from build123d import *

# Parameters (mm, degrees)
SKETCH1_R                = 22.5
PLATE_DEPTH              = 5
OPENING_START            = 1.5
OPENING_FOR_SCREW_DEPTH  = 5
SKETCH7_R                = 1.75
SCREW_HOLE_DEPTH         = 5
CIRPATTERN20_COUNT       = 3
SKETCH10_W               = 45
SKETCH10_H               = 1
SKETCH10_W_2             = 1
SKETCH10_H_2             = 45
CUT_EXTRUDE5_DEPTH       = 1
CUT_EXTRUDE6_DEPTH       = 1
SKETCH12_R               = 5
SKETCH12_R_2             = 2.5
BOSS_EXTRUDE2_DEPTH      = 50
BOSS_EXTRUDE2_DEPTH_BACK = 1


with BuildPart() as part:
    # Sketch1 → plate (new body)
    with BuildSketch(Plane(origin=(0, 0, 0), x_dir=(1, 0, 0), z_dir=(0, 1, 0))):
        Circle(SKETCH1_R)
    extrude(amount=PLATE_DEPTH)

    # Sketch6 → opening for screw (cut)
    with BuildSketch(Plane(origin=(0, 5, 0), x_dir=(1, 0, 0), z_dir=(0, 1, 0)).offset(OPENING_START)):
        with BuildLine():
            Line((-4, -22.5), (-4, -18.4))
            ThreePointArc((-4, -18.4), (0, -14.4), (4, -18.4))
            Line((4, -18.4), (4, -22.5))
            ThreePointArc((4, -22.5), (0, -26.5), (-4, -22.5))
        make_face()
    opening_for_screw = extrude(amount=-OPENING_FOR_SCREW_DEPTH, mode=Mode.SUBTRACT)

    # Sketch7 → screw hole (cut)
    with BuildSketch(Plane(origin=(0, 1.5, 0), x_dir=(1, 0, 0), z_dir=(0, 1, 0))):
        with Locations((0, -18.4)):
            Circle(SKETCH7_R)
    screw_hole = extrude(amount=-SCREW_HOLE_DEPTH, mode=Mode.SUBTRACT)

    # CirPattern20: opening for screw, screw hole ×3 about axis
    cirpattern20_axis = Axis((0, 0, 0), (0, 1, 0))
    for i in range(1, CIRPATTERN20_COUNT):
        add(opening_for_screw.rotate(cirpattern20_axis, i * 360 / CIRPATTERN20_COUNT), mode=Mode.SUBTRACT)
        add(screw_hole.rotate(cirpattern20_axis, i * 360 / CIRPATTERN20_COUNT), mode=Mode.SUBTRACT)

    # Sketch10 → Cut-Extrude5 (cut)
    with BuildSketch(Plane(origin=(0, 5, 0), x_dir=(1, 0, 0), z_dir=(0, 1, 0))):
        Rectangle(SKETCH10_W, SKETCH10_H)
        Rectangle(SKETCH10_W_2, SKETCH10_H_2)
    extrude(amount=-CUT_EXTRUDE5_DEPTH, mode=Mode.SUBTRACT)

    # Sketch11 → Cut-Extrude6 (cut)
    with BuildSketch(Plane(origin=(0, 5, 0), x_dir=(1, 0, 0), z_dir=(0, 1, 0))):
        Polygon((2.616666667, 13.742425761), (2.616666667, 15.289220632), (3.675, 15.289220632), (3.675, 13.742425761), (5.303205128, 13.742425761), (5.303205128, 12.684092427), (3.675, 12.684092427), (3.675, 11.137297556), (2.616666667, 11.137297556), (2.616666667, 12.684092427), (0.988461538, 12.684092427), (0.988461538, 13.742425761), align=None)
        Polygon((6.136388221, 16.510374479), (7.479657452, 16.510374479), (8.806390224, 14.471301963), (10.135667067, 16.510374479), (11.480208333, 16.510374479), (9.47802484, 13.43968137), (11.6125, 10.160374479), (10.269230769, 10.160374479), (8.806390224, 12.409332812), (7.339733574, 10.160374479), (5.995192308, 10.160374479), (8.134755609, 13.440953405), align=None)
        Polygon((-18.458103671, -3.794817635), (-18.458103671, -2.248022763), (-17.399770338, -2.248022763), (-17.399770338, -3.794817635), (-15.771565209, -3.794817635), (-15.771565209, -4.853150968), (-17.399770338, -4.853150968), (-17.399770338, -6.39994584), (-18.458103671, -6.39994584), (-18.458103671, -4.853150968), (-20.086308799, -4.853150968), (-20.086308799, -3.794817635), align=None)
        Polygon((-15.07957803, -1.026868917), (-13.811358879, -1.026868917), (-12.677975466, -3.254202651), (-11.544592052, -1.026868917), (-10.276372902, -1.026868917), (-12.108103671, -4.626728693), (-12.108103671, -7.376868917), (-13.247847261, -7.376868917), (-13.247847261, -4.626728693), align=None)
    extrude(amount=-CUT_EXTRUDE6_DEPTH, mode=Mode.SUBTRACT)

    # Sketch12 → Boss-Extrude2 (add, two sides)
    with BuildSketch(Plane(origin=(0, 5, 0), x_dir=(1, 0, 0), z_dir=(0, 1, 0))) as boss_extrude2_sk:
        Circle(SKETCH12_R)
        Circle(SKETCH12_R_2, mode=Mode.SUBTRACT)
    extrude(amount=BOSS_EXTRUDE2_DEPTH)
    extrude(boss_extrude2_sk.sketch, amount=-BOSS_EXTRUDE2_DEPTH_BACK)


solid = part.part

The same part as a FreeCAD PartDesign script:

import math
import FreeCAD as App
import Part
import Sketcher

doc = App.newDocument("Part")
body = doc.addObject("PartDesign::Body", "Body")

# Sketch on XZ plane
sketch1 = body.newObject("Sketcher::SketchObject", "Sketch")
sketch1.AttachmentSupport = (doc.getObject("XZ_Plane"), [""])
sketch1.MapMode = "FlatFace"
sketch1.addGeometry(Part.Circle(App.Vector(0, 0, 0), App.Vector(0, 0, 1), 22), False)
sketch1.addConstraint(Sketcher.Constraint("Coincident", 0, 3, -1, 1))
sketch1.addConstraint(Sketcher.Constraint("Diameter", 0, 45.0))
pad1 = body.newObject("PartDesign::Pad", "Pad")
pad1.Profile = sketch1
pad1.Length = 5
pad1.Reversed = True

# Sketch on XZ plane
sketch2 = body.newObject("Sketcher::SketchObject", "Sketch001")
sketch2.AttachmentSupport = (doc.getObject("XZ_Plane"), [""])
sketch2.MapMode = "FlatFace"
sketch2.AttachmentOffset = App.Placement(App.Vector(0, 0, -6.5), App.Rotation())
sketch2.addGeometry(Part.LineSegment(App.Vector(-4, 18.4, 0), App.Vector(-4, 22.5, 0)), False)
sketch2.addGeometry(Part.ArcOfCircle(Part.Circle(App.Vector(0, 22.5, 0), App.Vector(0, 0, 1), 4), math.radians(0), math.radians(180)), False)
sketch2.addGeometry(Part.LineSegment(App.Vector(4, 22.5, 0), App.Vector(4, 18.4, 0)), False)
sketch2.addGeometry(Part.ArcOfCircle(Part.Circle(App.Vector(0, 18.4, 0), App.Vector(0, 0, 1), 4), math.radians(180), math.radians(360)), False)
sketch2.addConstraint(Sketcher.Constraint("Tangent", 0, 2, 1, 2))
sketch2.addConstraint(Sketcher.Constraint("Tangent", 1, 1, 2, 1))
sketch2.addConstraint(Sketcher.Constraint("Tangent", 2, 2, 3, 2))
sketch2.addConstraint(Sketcher.Constraint("Tangent", 3, 1, 0, 1))
sketch2.addConstraint(Sketcher.Constraint("Vertical", 0))
sketch2.addConstraint(Sketcher.Constraint("Vertical", 2))
sketch2.addConstraint(Sketcher.Constraint("PointOnObject", 1, 3, -2))
sketch2.addConstraint(Sketcher.Constraint("Radius", 1, 4.0))
sketch2.addConstraint(Sketcher.Constraint("DistanceY", 0, 1, 0, 2, 4.1))
sketch2.addConstraint(Sketcher.Constraint("DistanceY", -1, 1, 1, 3, 22.5))
pocket1 = body.newObject("PartDesign::Pocket", "Pocket")
pocket1.Profile = sketch2
pocket1.Length = 5
pocket1.Reversed = True

# Sketch on XZ plane
sketch3 = body.newObject("Sketcher::SketchObject", "Sketch002")
sketch3.AttachmentSupport = (doc.getObject("XZ_Plane"), [""])
sketch3.MapMode = "FlatFace"
sketch3.AttachmentOffset = App.Placement(App.Vector(0, 0, -1.5), App.Rotation())
sketch3.addGeometry(Part.Circle(App.Vector(0, 18.4, 0), App.Vector(0, 0, 1), 1.8), False)
sketch3.addConstraint(Sketcher.Constraint("PointOnObject", 0, 3, -2))
sketch3.addConstraint(Sketcher.Constraint("Diameter", 0, 3.5))
sketch3.addConstraint(Sketcher.Constraint("DistanceY", -1, 1, 0, 3, 18.4))
pocket2 = body.newObject("PartDesign::Pocket", "Pocket001")
pocket2.Profile = sketch3
pocket2.Length = 5
pocket2.Reversed = True
doc.recompute()

polarpattern = body.newObject("PartDesign::PolarPattern", "PolarPattern")
polarpattern.Originals = [pocket1, pocket2]
polarpattern.Axis = (doc.getObject("Y_Axis"), [""])
polarpattern.Angle = 360
polarpattern.Occurrences = 3
body.Tip = polarpattern

# Sketch on XZ plane
sketch4 = body.newObject("Sketcher::SketchObject", "Sketch003")
sketch4.AttachmentSupport = (doc.getObject("XZ_Plane"), [""])
sketch4.MapMode = "FlatFace"
sketch4.AttachmentOffset = App.Placement(App.Vector(0, 0, -5), App.Rotation())
sketch4.addGeometry(Part.LineSegment(App.Vector(-22.5, -0.5, 0), App.Vector(-22.5, 0.5, 0)), False)
sketch4.addGeometry(Part.LineSegment(App.Vector(-22.5, 0.5, 0), App.Vector(-0.5, 0.5, 0)), False)
sketch4.addGeometry(Part.LineSegment(App.Vector(-0.5, 0.5, 0), App.Vector(-0.5, 22.5, 0)), False)
sketch4.addGeometry(Part.LineSegment(App.Vector(-0.5, 22.5, 0), App.Vector(0.5, 22.5, 0)), False)
sketch4.addGeometry(Part.LineSegment(App.Vector(0.5, 22.5, 0), App.Vector(0.5, 0.5, 0)), False)
sketch4.addGeometry(Part.LineSegment(App.Vector(0.5, 0.5, 0), App.Vector(22.5, 0.5, 0)), False)
sketch4.addGeometry(Part.LineSegment(App.Vector(22.5, 0.5, 0), App.Vector(22.5, -0.5, 0)), False)
sketch4.addGeometry(Part.LineSegment(App.Vector(22.5, -0.5, 0), App.Vector(0.5, -0.5, 0)), False)
sketch4.addGeometry(Part.LineSegment(App.Vector(0.5, -0.5, 0), App.Vector(0.5, -22.5, 0)), False)
sketch4.addGeometry(Part.LineSegment(App.Vector(0.5, -22.5, 0), App.Vector(-0.5, -22.5, 0)), False)
sketch4.addGeometry(Part.LineSegment(App.Vector(-0.5, -22.5, 0), App.Vector(-0.5, -0.5, 0)), False)
sketch4.addGeometry(Part.LineSegment(App.Vector(-0.5, -0.5, 0), App.Vector(-22.5, -0.5, 0)), False)
sketch4.addConstraint(Sketcher.Constraint("Coincident", 0, 2, 1, 1))
sketch4.addConstraint(Sketcher.Constraint("Coincident", 1, 2, 2, 1))
sketch4.addConstraint(Sketcher.Constraint("Coincident", 2, 2, 3, 1))
sketch4.addConstraint(Sketcher.Constraint("Coincident", 3, 2, 4, 1))
sketch4.addConstraint(Sketcher.Constraint("Coincident", 4, 2, 5, 1))
sketch4.addConstraint(Sketcher.Constraint("Coincident", 5, 2, 6, 1))
sketch4.addConstraint(Sketcher.Constraint("Coincident", 6, 2, 7, 1))
sketch4.addConstraint(Sketcher.Constraint("Coincident", 7, 2, 8, 1))
sketch4.addConstraint(Sketcher.Constraint("Coincident", 8, 2, 9, 1))
sketch4.addConstraint(Sketcher.Constraint("Coincident", 9, 2, 10, 1))
sketch4.addConstraint(Sketcher.Constraint("Coincident", 10, 2, 11, 1))
sketch4.addConstraint(Sketcher.Constraint("Coincident", 11, 2, 0, 1))
sketch4.addConstraint(Sketcher.Constraint("Vertical", 0))
sketch4.addConstraint(Sketcher.Constraint("Horizontal", 1))
sketch4.addConstraint(Sketcher.Constraint("Vertical", 2))
sketch4.addConstraint(Sketcher.Constraint("Horizontal", 3))
sketch4.addConstraint(Sketcher.Constraint("Vertical", 4))
sketch4.addConstraint(Sketcher.Constraint("Horizontal", 5))
sketch4.addConstraint(Sketcher.Constraint("Vertical", 6))
sketch4.addConstraint(Sketcher.Constraint("Horizontal", 7))
sketch4.addConstraint(Sketcher.Constraint("Vertical", 8))
sketch4.addConstraint(Sketcher.Constraint("Horizontal", 9))
sketch4.addConstraint(Sketcher.Constraint("Vertical", 10))
sketch4.addConstraint(Sketcher.Constraint("Horizontal", 11))
sketch4.addConstraint(Sketcher.Constraint("Symmetric", 0, 2, 6, 2, -1, 1))
sketch4.addConstraint(Sketcher.Constraint("Symmetric", 2, 2, 8, 2, -1, 1))
sketch4.addConstraint(Sketcher.Constraint("Symmetric", 4, 2, 10, 2, -1, 1))
sketch4.addConstraint(Sketcher.Constraint("Symmetric", 1, 2, 4, 2, -2))
sketch4.addConstraint(Sketcher.Constraint("Equal", 9, 0))
sketch4.addConstraint(Sketcher.Constraint("Equal", 11, 2))
sketch4.addConstraint(Sketcher.Constraint("DistanceX", 1, 1, 1, 2, 22.0))
sketch4.addConstraint(Sketcher.Constraint("DistanceX", 3, 1, 3, 2, 1.0))
pocket3 = body.newObject("PartDesign::Pocket", "Pocket002")
pocket3.Profile = sketch4
pocket3.Length = 1
pocket3.Reversed = True

# Sketch on XZ plane
sketch5 = body.newObject("Sketcher::SketchObject", "Sketch004")
sketch5.AttachmentSupport = (doc.getObject("XZ_Plane"), [""])
sketch5.MapMode = "FlatFace"
sketch5.AttachmentOffset = App.Placement(App.Vector(0, 0, -5), App.Rotation())
sketch5.addGeometry(Part.LineSegment(App.Vector(2.6, -15.3, 0), App.Vector(2.6, -13.7, 0)), False)
sketch5.addGeometry(Part.LineSegment(App.Vector(2.6, -13.7, 0), App.Vector(1, -13.7, 0)), False)
sketch5.addGeometry(Part.LineSegment(App.Vector(1, -13.7, 0), App.Vector(1, -12.7, 0)), False)
sketch5.addGeometry(Part.LineSegment(App.Vector(1, -12.7, 0), App.Vector(2.6, -12.7, 0)), False)
sketch5.addGeometry(Part.LineSegment(App.Vector(2.6, -12.7, 0), App.Vector(2.6, -11.1, 0)), False)
sketch5.addGeometry(Part.LineSegment(App.Vector(2.6, -11.1, 0), App.Vector(3.7, -11.1, 0)), False)
sketch5.addGeometry(Part.LineSegment(App.Vector(3.7, -11.1, 0), App.Vector(3.7, -12.7, 0)), False)
sketch5.addGeometry(Part.LineSegment(App.Vector(3.7, -12.7, 0), App.Vector(5.3, -12.7, 0)), False)
sketch5.addGeometry(Part.LineSegment(App.Vector(5.3, -12.7, 0), App.Vector(5.3, -13.7, 0)), False)
sketch5.addGeometry(Part.LineSegment(App.Vector(5.3, -13.7, 0), App.Vector(3.7, -13.7, 0)), False)
sketch5.addGeometry(Part.LineSegment(App.Vector(3.7, -13.7, 0), App.Vector(3.7, -15.3, 0)), False)
sketch5.addGeometry(Part.LineSegment(App.Vector(3.7, -15.3, 0), App.Vector(2.6, -15.3, 0)), False)
sketch5.addGeometry(Part.LineSegment(App.Vector(7.5, -16.5, 0), App.Vector(6.1, -16.5, 0)), False)
sketch5.addGeometry(Part.LineSegment(App.Vector(6.1, -16.5, 0), App.Vector(8.1, -13.4, 0)), False)
sketch5.addGeometry(Part.LineSegment(App.Vector(8.1, -13.4, 0), App.Vector(6, -10.2, 0)), False)
sketch5.addGeometry(Part.LineSegment(App.Vector(6, -10.2, 0), App.Vector(7.3, -10.2, 0)), False)
sketch5.addGeometry(Part.LineSegment(App.Vector(7.3, -10.2, 0), App.Vector(8.8, -12.4, 0)), False)
sketch5.addGeometry(Part.LineSegment(App.Vector(8.8, -12.4, 0), App.Vector(10.3, -10.2, 0)), False)
sketch5.addGeometry(Part.LineSegment(App.Vector(10.3, -10.2, 0), App.Vector(11.6, -10.2, 0)), False)
sketch5.addGeometry(Part.LineSegment(App.Vector(11.6, -10.2, 0), App.Vector(9.5, -13.4, 0)), False)
sketch5.addGeometry(Part.LineSegment(App.Vector(9.5, -13.4, 0), App.Vector(11.5, -16.5, 0)), False)
sketch5.addGeometry(Part.LineSegment(App.Vector(11.5, -16.5, 0), App.Vector(10.1, -16.5, 0)), False)
sketch5.addGeometry(Part.LineSegment(App.Vector(10.1, -16.5, 0), App.Vector(8.8, -14.5, 0)), False)
sketch5.addGeometry(Part.LineSegment(App.Vector(8.8, -14.5, 0), App.Vector(7.5, -16.5, 0)), False)
sketch5.addGeometry(Part.LineSegment(App.Vector(-18.5, 2.2, 0), App.Vector(-18.5, 3.8, 0)), False)
sketch5.addGeometry(Part.LineSegment(App.Vector(-18.5, 3.8, 0), App.Vector(-20.1, 3.8, 0)), False)
sketch5.addGeometry(Part.LineSegment(App.Vector(-20.1, 3.8, 0), App.Vector(-20.1, 4.9, 0)), False)
sketch5.addGeometry(Part.LineSegment(App.Vector(-20.1, 4.9, 0), App.Vector(-18.5, 4.9, 0)), False)
sketch5.addGeometry(Part.LineSegment(App.Vector(-18.5, 4.9, 0), App.Vector(-18.5, 6.4, 0)), False)
sketch5.addGeometry(Part.LineSegment(App.Vector(-18.5, 6.4, 0), App.Vector(-17.4, 6.4, 0)), False)
sketch5.addGeometry(Part.LineSegment(App.Vector(-17.4, 6.4, 0), App.Vector(-17.4, 4.9, 0)), False)
sketch5.addGeometry(Part.LineSegment(App.Vector(-17.4, 4.9, 0), App.Vector(-15.8, 4.9, 0)), False)
sketch5.addGeometry(Part.LineSegment(App.Vector(-15.8, 4.9, 0), App.Vector(-15.8, 3.8, 0)), False)
sketch5.addGeometry(Part.LineSegment(App.Vector(-15.8, 3.8, 0), App.Vector(-17.4, 3.8, 0)), False)
sketch5.addGeometry(Part.LineSegment(App.Vector(-17.4, 3.8, 0), App.Vector(-17.4, 2.2, 0)), False)
sketch5.addGeometry(Part.LineSegment(App.Vector(-17.4, 2.2, 0), App.Vector(-18.5, 2.2, 0)), False)
sketch5.addGeometry(Part.LineSegment(App.Vector(-13.8, 1, 0), App.Vector(-15.1, 1, 0)), False)
sketch5.addGeometry(Part.LineSegment(App.Vector(-15.1, 1, 0), App.Vector(-13.2, 4.6, 0)), False)
sketch5.addGeometry(Part.LineSegment(App.Vector(-13.2, 4.6, 0), App.Vector(-13.2, 7.4, 0)), False)
sketch5.addGeometry(Part.LineSegment(App.Vector(-13.2, 7.4, 0), App.Vector(-12.1, 7.4, 0)), False)
sketch5.addGeometry(Part.LineSegment(App.Vector(-12.1, 7.4, 0), App.Vector(-12.1, 4.6, 0)), False)
sketch5.addGeometry(Part.LineSegment(App.Vector(-12.1, 4.6, 0), App.Vector(-10.3, 1, 0)), False)
sketch5.addGeometry(Part.LineSegment(App.Vector(-10.3, 1, 0), App.Vector(-11.5, 1, 0)), False)
sketch5.addGeometry(Part.LineSegment(App.Vector(-11.5, 1, 0), App.Vector(-12.7, 3.3, 0)), False)
sketch5.addGeometry(Part.LineSegment(App.Vector(-12.7, 3.3, 0), App.Vector(-13.8, 1, 0)), False)
sketch5.addConstraint(Sketcher.Constraint("Coincident", 0, 2, 1, 1))
sketch5.addConstraint(Sketcher.Constraint("Coincident", 1, 2, 2, 1))
sketch5.addConstraint(Sketcher.Constraint("Coincident", 2, 2, 3, 1))
sketch5.addConstraint(Sketcher.Constraint("Coincident", 3, 2, 4, 1))
sketch5.addConstraint(Sketcher.Constraint("Coincident", 4, 2, 5, 1))
sketch5.addConstraint(Sketcher.Constraint("Coincident", 5, 2, 6, 1))
sketch5.addConstraint(Sketcher.Constraint("Coincident", 6, 2, 7, 1))
sketch5.addConstraint(Sketcher.Constraint("Coincident", 7, 2, 8, 1))
sketch5.addConstraint(Sketcher.Constraint("Coincident", 8, 2, 9, 1))
sketch5.addConstraint(Sketcher.Constraint("Coincident", 9, 2, 10, 1))
sketch5.addConstraint(Sketcher.Constraint("Coincident", 10, 2, 11, 1))
sketch5.addConstraint(Sketcher.Constraint("Coincident", 11, 2, 0, 1))
sketch5.addConstraint(Sketcher.Constraint("Coincident", 12, 2, 13, 1))
sketch5.addConstraint(Sketcher.Constraint("Coincident", 13, 2, 14, 1))
sketch5.addConstraint(Sketcher.Constraint("Coincident", 14, 2, 15, 1))
sketch5.addConstraint(Sketcher.Constraint("Coincident", 15, 2, 16, 1))
sketch5.addConstraint(Sketcher.Constraint("Coincident", 16, 2, 17, 1))
sketch5.addConstraint(Sketcher.Constraint("Coincident", 17, 2, 18, 1))
sketch5.addConstraint(Sketcher.Constraint("Coincident", 18, 2, 19, 1))
sketch5.addConstraint(Sketcher.Constraint("Coincident", 19, 2, 20, 1))
sketch5.addConstraint(Sketcher.Constraint("Coincident", 20, 2, 21, 1))
sketch5.addConstraint(Sketcher.Constraint("Coincident", 21, 2, 22, 1))
sketch5.addConstraint(Sketcher.Constraint("Coincident", 22, 2, 23, 1))
sketch5.addConstraint(Sketcher.Constraint("Coincident", 23, 2, 12, 1))
sketch5.addConstraint(Sketcher.Constraint("Coincident", 24, 2, 25, 1))
sketch5.addConstraint(Sketcher.Constraint("Coincident", 25, 2, 26, 1))
sketch5.addConstraint(Sketcher.Constraint("Coincident", 26, 2, 27, 1))
sketch5.addConstraint(Sketcher.Constraint("Coincident", 27, 2, 28, 1))
sketch5.addConstraint(Sketcher.Constraint("Coincident", 28, 2, 29, 1))
sketch5.addConstraint(Sketcher.Constraint("Coincident", 29, 2, 30, 1))
sketch5.addConstraint(Sketcher.Constraint("Coincident", 30, 2, 31, 1))
sketch5.addConstraint(Sketcher.Constraint("Coincident", 31, 2, 32, 1))
sketch5.addConstraint(Sketcher.Constraint("Coincident", 32, 2, 33, 1))
sketch5.addConstraint(Sketcher.Constraint("Coincident", 33, 2, 34, 1))
sketch5.addConstraint(Sketcher.Constraint("Coincident", 34, 2, 35, 1))
sketch5.addConstraint(Sketcher.Constraint("Coincident", 35, 2, 24, 1))
sketch5.addConstraint(Sketcher.Constraint("Coincident", 36, 2, 37, 1))
sketch5.addConstraint(Sketcher.Constraint("Coincident", 37, 2, 38, 1))
sketch5.addConstraint(Sketcher.Constraint("Coincident", 38, 2, 39, 1))
sketch5.addConstraint(Sketcher.Constraint("Coincident", 39, 2, 40, 1))
sketch5.addConstraint(Sketcher.Constraint("Coincident", 40, 2, 41, 1))
sketch5.addConstraint(Sketcher.Constraint("Coincident", 41, 2, 42, 1))
sketch5.addConstraint(Sketcher.Constraint("Coincident", 42, 2, 43, 1))
sketch5.addConstraint(Sketcher.Constraint("Coincident", 43, 2, 44, 1))
sketch5.addConstraint(Sketcher.Constraint("Coincident", 44, 2, 36, 1))
sketch5.addConstraint(Sketcher.Constraint("Vertical", 0))
sketch5.addConstraint(Sketcher.Constraint("Horizontal", 1))
sketch5.addConstraint(Sketcher.Constraint("Vertical", 2))
sketch5.addConstraint(Sketcher.Constraint("Horizontal", 3))
sketch5.addConstraint(Sketcher.Constraint("Vertical", 4))
sketch5.addConstraint(Sketcher.Constraint("Horizontal", 5))
sketch5.addConstraint(Sketcher.Constraint("Vertical", 6))
sketch5.addConstraint(Sketcher.Constraint("Horizontal", 7))
sketch5.addConstraint(Sketcher.Constraint("Vertical", 8))
sketch5.addConstraint(Sketcher.Constraint("Horizontal", 9))
sketch5.addConstraint(Sketcher.Constraint("Vertical", 10))
sketch5.addConstraint(Sketcher.Constraint("Horizontal", 11))
sketch5.addConstraint(Sketcher.Constraint("Horizontal", 12))
sketch5.addConstraint(Sketcher.Constraint("Horizontal", 15))
sketch5.addConstraint(Sketcher.Constraint("Horizontal", 18))
sketch5.addConstraint(Sketcher.Constraint("Horizontal", 21))
sketch5.addConstraint(Sketcher.Constraint("Vertical", 24))
sketch5.addConstraint(Sketcher.Constraint("Horizontal", 25))
sketch5.addConstraint(Sketcher.Constraint("Vertical", 26))
sketch5.addConstraint(Sketcher.Constraint("Horizontal", 27))
sketch5.addConstraint(Sketcher.Constraint("Vertical", 28))
sketch5.addConstraint(Sketcher.Constraint("Horizontal", 29))
sketch5.addConstraint(Sketcher.Constraint("Vertical", 30))
sketch5.addConstraint(Sketcher.Constraint("Horizontal", 31))
sketch5.addConstraint(Sketcher.Constraint("Vertical", 32))
sketch5.addConstraint(Sketcher.Constraint("Horizontal", 33))
sketch5.addConstraint(Sketcher.Constraint("Vertical", 34))
sketch5.addConstraint(Sketcher.Constraint("Horizontal", 35))
sketch5.addConstraint(Sketcher.Constraint("Horizontal", 36))
sketch5.addConstraint(Sketcher.Constraint("Vertical", 38))
sketch5.addConstraint(Sketcher.Constraint("Horizontal", 39))
sketch5.addConstraint(Sketcher.Constraint("Vertical", 40))
sketch5.addConstraint(Sketcher.Constraint("Horizontal", 42))
sketch5.addConstraint(Sketcher.Constraint("Horizontal", 3, 2, 6, 2))
sketch5.addConstraint(Sketcher.Constraint("Horizontal", 1, 2, 8, 2))
sketch5.addConstraint(Sketcher.Constraint("Horizontal", 15, 2, 17, 2))
sketch5.addConstraint(Sketcher.Constraint("Horizontal", 12, 2, 20, 2))
sketch5.addConstraint(Sketcher.Constraint("Horizontal", 27, 2, 30, 2))
sketch5.addConstraint(Sketcher.Constraint("Horizontal", 25, 2, 32, 2))
sketch5.addConstraint(Sketcher.Constraint("Horizontal", 37, 2, 40, 2))
sketch5.addConstraint(Sketcher.Constraint("Horizontal", 36, 2, 41, 2))
sketch5.addConstraint(Sketcher.Constraint("Vertical", 0, 2, 3, 2))
sketch5.addConstraint(Sketcher.Constraint("Vertical", 6, 2, 9, 2))
sketch5.addConstraint(Sketcher.Constraint("Vertical", 16, 2, 22, 2))
sketch5.addConstraint(Sketcher.Constraint("Vertical", 24, 2, 27, 2))
sketch5.addConstraint(Sketcher.Constraint("Vertical", 30, 2, 33, 2))
sketch5.addConstraint(Sketcher.Constraint("Equal", 3, 7))
sketch5.addConstraint(Sketcher.Constraint("Equal", 12, 18))
sketch5.addConstraint(Sketcher.Constraint("Equal", 15, 21))
sketch5.addConstraint(Sketcher.Constraint("Equal", 9, 25))
sketch5.addConstraint(Sketcher.Constraint("Equal", 11, 29))
sketch5.addConstraint(Sketcher.Constraint("Equal", 27, 31))
sketch5.addConstraint(Sketcher.Constraint("Equal", 36, 42))
sketch5.addConstraint(Sketcher.Constraint("Equal", 35, 2))
sketch5.addConstraint(Sketcher.Constraint("Equal", 0, 4))
sketch5.addConstraint(Sketcher.Constraint("Equal", 10, 24))
sketch5.addConstraint(Sketcher.Constraint("Equal", 8, 26))
sketch5.addConstraint(Sketcher.Constraint("Equal", 24, 28))
sketch5.addConstraint(Sketcher.Constraint("Equal", 37, 41))
sketch5.addConstraint(Sketcher.Constraint("Equal", 43, 44))
sketch5.addConstraint(Sketcher.Constraint("DistanceY", 20, 2, 18, 2, 6.35))
sketch5.addConstraint(Sketcher.Constraint("DistanceY", 41, 2, 39, 2, 6.35))
sketch5.addConstraint(Sketcher.Constraint("DistanceX", -1, 1, 5, 2, 3.675))
sketch5.addConstraint(Sketcher.Constraint("Distance", 23, 2.432701))
sketch5.addConstraint(Sketcher.Constraint("DistanceX", 12, 2, 12, 1, 1.343269))
sketch5.addConstraint(Sketcher.Constraint("DistanceX", 15, 1, 15, 2, 1.344541))
sketch5.addConstraint(Sketcher.Constraint("DistanceX", 36, 2, 36, 1, 1.268219))
sketch5.addConstraint(Sketcher.Constraint("DistanceY", 38, 1, 38, 2, 2.75014))
sketch5.addConstraint(Sketcher.Constraint("DistanceX", -1, 1, 18, 2, 11.6125))
sketch5.addConstraint(Sketcher.Constraint("DistanceY", 22, 2, -1, 1, 14.471302))
sketch5.addConstraint(Sketcher.Constraint("DistanceX", 23, 2, 13, 2, 0.655098))
sketch5.addConstraint(Sketcher.Constraint("Distance", 16, 2.684939))
sketch5.addConstraint(Sketcher.Constraint("Distance", 19, 3.912779))
sketch5.addConstraint(Sketcher.Constraint("Distance", 22, 2.43409))
sketch5.addConstraint(Sketcher.Constraint("DistanceX", 1, 2, 1, 1, 1.628205))
sketch5.addConstraint(Sketcher.Constraint("DistanceX", 5, 1, 5, 2, 1.058333))
sketch5.addConstraint(Sketcher.Constraint("DistanceX", 39, 1, 39, 2, 1.139744))
sketch5.addConstraint(Sketcher.Constraint("DistanceY", 0, 1, 0, 2, 1.546795))
sketch5.addConstraint(Sketcher.Constraint("DistanceY", 10, 2, -1, 1, 15.289221))
sketch5.addConstraint(Sketcher.Constraint("DistanceX", -1, 1, 12, 2, 6.136388))
sketch5.addConstraint(Sketcher.Constraint("DistanceX", -1, 1, 16, 2, 8.80639))
sketch5.addConstraint(Sketcher.Constraint("DistanceY", 19, 2, -1, 1, 13.439681))
sketch5.addConstraint(Sketcher.Constraint("DistanceX", 25, 2, -1, 1, 20.086309))
sketch5.addConstraint(Sketcher.Constraint("DistanceY", -1, 1, 26, 2, 4.853151))
sketch5.addConstraint(Sketcher.Constraint("DistanceX", 36, 2, -1, 1, 15.079578))
sketch5.addConstraint(Sketcher.Constraint("DistanceY", -1, 1, 36, 2, 1.026869))
sketch5.addConstraint(Sketcher.Constraint("DistanceY", 13, 2, 7, 2, 0.756861))
sketch5.addConstraint(Sketcher.Constraint("DistanceX", 7, 2, 15, 2, 2.036528))
sketch5.addConstraint(Sketcher.Constraint("DistanceX", 36, 2, 37, 2, 1.831731))
sketch5.addConstraint(Sketcher.Constraint("Distance", 43, 2.499115))
pocket4 = body.newObject("PartDesign::Pocket", "Pocket003")
pocket4.Profile = sketch5
pocket4.Length = 1
pocket4.Reversed = True

# Sketch on XZ plane
sketch6 = body.newObject("Sketcher::SketchObject", "Sketch005")
sketch6.AttachmentSupport = (doc.getObject("XZ_Plane"), [""])
sketch6.MapMode = "FlatFace"
sketch6.AttachmentOffset = App.Placement(App.Vector(0, 0, -5), App.Rotation())
sketch6.addGeometry(Part.Circle(App.Vector(0, 0, 0), App.Vector(0, 0, 1), 5), False)
sketch6.addGeometry(Part.Circle(App.Vector(0, 0, 0), App.Vector(0, 0, 1), 2.5), False)
sketch6.addConstraint(Sketcher.Constraint("Coincident", 0, 3, -1, 1))
sketch6.addConstraint(Sketcher.Constraint("Coincident", 1, 3, -1, 1))
sketch6.addConstraint(Sketcher.Constraint("Diameter", 0, 10.0))
sketch6.addConstraint(Sketcher.Constraint("Diameter", 1, 5.0))
pad2 = body.newObject("PartDesign::Pad", "Pad001")
pad2.Profile = sketch6
pad2.Type = "TwoLengths"
pad2.Length = 50
pad2.Length2 = 1
pad2.Reversed = True

doc.recompute()
